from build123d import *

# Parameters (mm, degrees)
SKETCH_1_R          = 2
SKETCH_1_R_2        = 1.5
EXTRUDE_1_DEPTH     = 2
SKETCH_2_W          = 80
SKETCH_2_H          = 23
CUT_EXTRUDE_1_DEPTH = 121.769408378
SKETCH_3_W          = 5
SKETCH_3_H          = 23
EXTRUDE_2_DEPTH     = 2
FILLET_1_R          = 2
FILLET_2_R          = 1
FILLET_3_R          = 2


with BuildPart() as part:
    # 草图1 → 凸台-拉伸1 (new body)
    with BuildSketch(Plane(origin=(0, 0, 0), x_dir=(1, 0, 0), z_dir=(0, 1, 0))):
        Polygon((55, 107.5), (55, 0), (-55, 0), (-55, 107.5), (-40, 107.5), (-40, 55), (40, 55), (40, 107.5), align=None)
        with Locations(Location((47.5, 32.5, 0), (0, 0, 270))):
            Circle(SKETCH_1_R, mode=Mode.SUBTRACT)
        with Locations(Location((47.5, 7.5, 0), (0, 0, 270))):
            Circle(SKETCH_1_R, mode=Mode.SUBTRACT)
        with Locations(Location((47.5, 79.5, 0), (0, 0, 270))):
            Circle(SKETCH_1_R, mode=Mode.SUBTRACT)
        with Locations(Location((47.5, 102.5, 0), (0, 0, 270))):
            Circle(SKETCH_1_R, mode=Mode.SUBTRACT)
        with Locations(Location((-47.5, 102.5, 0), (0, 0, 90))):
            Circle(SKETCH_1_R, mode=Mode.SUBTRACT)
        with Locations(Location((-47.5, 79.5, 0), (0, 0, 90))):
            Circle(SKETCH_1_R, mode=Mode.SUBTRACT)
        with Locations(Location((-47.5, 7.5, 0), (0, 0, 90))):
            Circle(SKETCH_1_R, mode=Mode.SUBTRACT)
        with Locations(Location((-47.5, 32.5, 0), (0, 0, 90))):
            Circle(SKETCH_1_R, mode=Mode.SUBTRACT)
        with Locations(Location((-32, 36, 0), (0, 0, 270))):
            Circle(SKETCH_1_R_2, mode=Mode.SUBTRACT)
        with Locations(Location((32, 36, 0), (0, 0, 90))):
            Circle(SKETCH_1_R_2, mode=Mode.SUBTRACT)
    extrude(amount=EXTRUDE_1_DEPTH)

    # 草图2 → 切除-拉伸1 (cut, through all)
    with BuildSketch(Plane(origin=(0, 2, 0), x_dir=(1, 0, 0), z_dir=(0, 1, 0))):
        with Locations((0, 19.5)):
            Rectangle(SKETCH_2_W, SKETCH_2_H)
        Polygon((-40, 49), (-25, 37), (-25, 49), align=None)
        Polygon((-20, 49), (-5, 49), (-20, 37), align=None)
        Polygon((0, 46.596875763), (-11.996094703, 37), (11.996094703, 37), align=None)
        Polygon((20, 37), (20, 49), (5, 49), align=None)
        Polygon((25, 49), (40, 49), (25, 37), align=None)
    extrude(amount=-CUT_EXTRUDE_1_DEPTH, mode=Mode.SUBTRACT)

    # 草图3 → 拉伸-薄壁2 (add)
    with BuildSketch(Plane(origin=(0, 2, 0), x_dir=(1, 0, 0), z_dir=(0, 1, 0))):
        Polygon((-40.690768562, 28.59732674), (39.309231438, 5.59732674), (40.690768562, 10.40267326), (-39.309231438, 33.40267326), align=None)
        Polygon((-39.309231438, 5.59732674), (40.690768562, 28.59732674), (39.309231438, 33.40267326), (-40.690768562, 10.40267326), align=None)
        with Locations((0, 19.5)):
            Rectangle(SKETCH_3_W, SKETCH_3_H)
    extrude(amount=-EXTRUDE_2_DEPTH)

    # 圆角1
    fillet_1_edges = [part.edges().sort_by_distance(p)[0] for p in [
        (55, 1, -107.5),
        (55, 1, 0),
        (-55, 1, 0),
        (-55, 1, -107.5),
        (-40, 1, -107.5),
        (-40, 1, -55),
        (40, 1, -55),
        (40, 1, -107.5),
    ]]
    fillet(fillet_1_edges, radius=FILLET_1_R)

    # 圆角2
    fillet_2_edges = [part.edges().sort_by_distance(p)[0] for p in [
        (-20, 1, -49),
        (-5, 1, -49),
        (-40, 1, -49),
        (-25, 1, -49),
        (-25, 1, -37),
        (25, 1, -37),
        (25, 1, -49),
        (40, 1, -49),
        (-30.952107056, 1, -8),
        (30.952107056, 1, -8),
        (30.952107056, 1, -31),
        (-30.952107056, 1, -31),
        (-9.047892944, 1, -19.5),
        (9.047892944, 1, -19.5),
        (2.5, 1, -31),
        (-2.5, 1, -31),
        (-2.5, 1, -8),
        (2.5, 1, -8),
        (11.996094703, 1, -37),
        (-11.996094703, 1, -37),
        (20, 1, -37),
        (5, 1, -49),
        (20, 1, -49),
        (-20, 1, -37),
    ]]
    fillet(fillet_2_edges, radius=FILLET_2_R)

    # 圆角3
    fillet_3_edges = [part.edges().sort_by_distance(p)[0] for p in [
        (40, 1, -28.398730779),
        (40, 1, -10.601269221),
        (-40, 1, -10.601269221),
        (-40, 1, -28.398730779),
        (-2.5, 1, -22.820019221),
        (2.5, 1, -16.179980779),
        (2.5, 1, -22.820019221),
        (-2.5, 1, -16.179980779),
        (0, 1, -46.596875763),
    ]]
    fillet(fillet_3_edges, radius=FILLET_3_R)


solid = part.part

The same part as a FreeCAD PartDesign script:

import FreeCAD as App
import Part
import Sketcher


def edges_at(feature, points):
    """Names of the edges that pass closest to the given points."""
    edges = feature.Shape.Edges
    near = lambda p: min(range(len(edges)), key=lambda i: edges[i].distToShape(Part.Vertex(*p))[0])
    return sorted({f"Edge{near(p) + 1}" for p in points})


def add_polygon(sketch, points):
    """Adds a closed chain of lines whose ends are joined by coincident constraints."""
    first, n = sketch.GeometryCount, len(points)
    for a, b in zip(points, points[1:] + points[:1]):
        sketch.addGeometry(Part.LineSegment(App.Vector(*a, 0), App.Vector(*b, 0)), False)
    for i in range(n):
        sketch.addConstraint(Sketcher.Constraint("Coincident", first + i, 2, first + (i + 1) % n, 1))

doc = App.newDocument("Part")
body = doc.addObject("PartDesign::Body", "Body")

sketch1 = body.newObject("Sketcher::SketchObject", "Sketch")
sketch1.AttachmentSupport = (doc.getObject("XZ_Plane"), [""])
sketch1.MapMode = "FlatFace"
add_polygon(sketch1, [(55, 0), (55, -107.5), (40, -107.5), (40, -55), (-40, -55), (-40, -107.5), (-55, -107.5), (-55, 0)])
sketch1.addGeometry(Part.Circle(App.Vector(47.5, -7.5, 0), App.Vector(0, 0, 1), 2), False)
sketch1.addGeometry(Part.Circle(App.Vector(47.5, -32.5, 0), App.Vector(0, 0, 1), 2), False)
sketch1.addGeometry(Part.Circle(App.Vector(32, -36, 0), App.Vector(0, 0, 1), 1.5), False)
sketch1.addGeometry(Part.Circle(App.Vector(-47.5, -7.5, 0), App.Vector(0, 0, 1), 2), False)
sketch1.addGeometry(Part.Circle(App.Vector(-32, -36, 0), App.Vector(0, 0, 1), 1.5), False)
sketch1.addGeometry(Part.Circle(App.Vector(-47.5, -32.5, 0), App.Vector(0, 0, 1), 2), False)
sketch1.addGeometry(Part.Circle(App.Vector(47.5, -79.5, 0), App.Vector(0, 0, 1), 2), False)
sketch1.addGeometry(Part.Circle(App.Vector(47.5, -102.5, 0), App.Vector(0, 0, 1), 2), False)
sketch1.addGeometry(Part.Circle(App.Vector(-47.5, -79.5, 0), App.Vector(0, 0, 1), 2), False)
sketch1.addGeometry(Part.Circle(App.Vector(-47.5, -102.5, 0), App.Vector(0, 0, 1), 2), False)
sketch1.addConstraint([
    Sketcher.Constraint("Vertical", 0),
    Sketcher.Constraint("Horizontal", 1),
    Sketcher.Constraint("Vertical", 2),
    Sketcher.Constraint("Horizontal", 3),
    Sketcher.Constraint("Vertical", 4),
    Sketcher.Constraint("Horizontal", 5),
    Sketcher.Constraint("Vertical", 6),
    Sketcher.Constraint("Horizontal", 7),
    Sketcher.Constraint("Equal", 8, 9),
    Sketcher.Constraint("Equal", 9, 11),
    Sketcher.Constraint("Equal", 10, 12),
    Sketcher.Constraint("Equal", 11, 13),
    Sketcher.Constraint("Equal", 13, 14),
    Sketcher.Constraint("Equal", 14, 15),
    Sketcher.Constraint("Equal", 15, 16),
    Sketcher.Constraint("Equal", 16, 17),
    Sketcher.Constraint("Symmetric", 6, 2, 7, 2, -1, 1),
    Sketcher.Constraint("Symmetric", 8, 3, 11, 3, -2),
    Sketcher.Constraint("Symmetric", 10, 3, 12, 3, -2),
    Sketcher.Constraint("Symmetric", 9, 3, 13, 3, -2),
    Sketcher.Constraint("Symmetric", 14, 3, 16, 3, -2),
    Sketcher.Constraint("Symmetric", 15, 3, 17, 3, -2),
    Sketcher.Constraint("Symmetric", 1, 2, 4, 2, -2),
    Sketcher.Constraint("Vertical", 8, 3, 9, 3),
    Sketcher.Constraint("Vertical", 9, 3, 14, 3),
    Sketcher.Constraint("Vertical", 14, 3, 15, 3),
    Sketcher.Constraint("Diameter", 8, 4.0),
    Sketcher.Constraint("Diameter", 10, 3.0),
    Sketcher.Constraint("DistanceX", 1, 2, 1, 1, 15.0),
    Sketcher.Constraint("DistanceX", 3, 2, 3, 1, 80.0),
    Sketcher.Constraint("DistanceY", 0, 2, 0, 1, 107.5),
    Sketcher.Constraint("DistanceY", 2, 1, 2, 2, 52.5),
    Sketcher.Constraint("DistanceX", -1, 1, 10, 3, 32.0),
    Sketcher.Constraint("DistanceY", 10, 3, -1, 1, 36.0),
    Sketcher.Constraint("DistanceY", 9, 3, 8, 3, 25.0),
    Sketcher.Constraint("DistanceX", 11, 3, 8, 3, 95.0),
    Sketcher.Constraint("DistanceY", 14, 3, 9, 3, 47.0),
    Sketcher.Constraint("DistanceY", 15, 3, 14, 3, 23.0),
    Sketcher.Constraint("DistanceY", 0, 2, 15, 3, 5.0),
])
pad1 = body.newObject("PartDesign::Pad", "Pad")
pad1.Profile = sketch1
pad1.Length = 2
pad1.Reversed = True

sketch2 = body.newObject("Sketcher::SketchObject", "Sketch001")
sketch2.AttachmentSupport = (doc.getObject("XZ_Plane"), [""])
sketch2.MapMode = "FlatFace"
sketch2.AttachmentOffset = App.Placement(App.Vector(0, 0, -2), App.Rotation())
add_polygon(sketch2, [(-40, -31), (-40, -8), (40, -8), (40, -31)])
add_polygon(sketch2, [(-40, -49), (-25, -37), (-25, -49)])
add_polygon(sketch2, [(-5, -49), (-20, -49), (-20, -37)])
add_polygon(sketch2, [(0, -47), (-12, -37), (12, -37)])
add_polygon(sketch2, [(20, -37), (20, -49), (5, -49)])
add_polygon(sketch2, [(40, -49), (25, -49), (25, -37)])
sketch2.addConstraint([
    Sketcher.Constraint("Vertical", 0),
    Sketcher.Constraint("Horizontal", 1),
    Sketcher.Constraint("Vertical", 2),
    Sketcher.Constraint("Horizontal", 3),
    Sketcher.Constraint("Vertical", 5),
    Sketcher.Constraint("Horizontal", 6),
    Sketcher.Constraint("Horizontal", 7),
    Sketcher.Constraint("Vertical", 8),
    Sketcher.Constraint("Horizontal", 11),
    Sketcher.Constraint("Vertical", 13),
    Sketcher.Constraint("Horizontal", 14),
    Sketcher.Constraint("Horizontal", 16),
    Sketcher.Constraint("Vertical", 17),
    Sketcher.Constraint("Symmetric", 7, 2, 13, 2, -2),
    Sketcher.Constraint("Symmetric", 5, 2, 16, 2, -2),
    Sketcher.Constraint("PointOnObject", 12, 2, -2),
    Sketcher.Constraint("Parallel", 9, 10),
    Sketcher.Constraint("Parallel", 4, 12),
    Sketcher.Constraint("Parallel", 12, 15),
    Sketcher.Constraint("Parallel", 10, 18),
    Sketcher.Constraint("Horizontal", 6, 2, 7, 2),
    Sketcher.Constraint("Horizontal", 4, 2, 8, 2),
    Sketcher.Constraint("Horizontal", 8, 2, 10, 2),
    Sketcher.Constraint("Horizontal", 11, 2, 15, 2),
    Sketcher.Constraint("Horizontal", 15, 2, 17, 2),
    Sketcher.Constraint("Vertical", 3, 2, 6, 2),
    Sketcher.Constraint("Vertical", 2, 2, 18, 2),
    Sketcher.Constraint("Equal", 6, 7),
    Sketcher.Constraint("DistanceX", 1, 1, 1, 2, 80.0),
    Sketcher.Constraint("DistanceX", 6, 2, 6, 1, 15.0),
    Sketcher.Constraint("DistanceY", 0, 1, 0, 2, 23.0),
    Sketcher.Constraint("DistanceY", 5, 2, 5, 1, 12.0),
    Sketcher.Constraint("DistanceY", 0, 2, -1, 1, 8.0),
    Sketcher.Constraint("DistanceY", 4, 2, -1, 1, 37.0),
    Sketcher.Constraint("DistanceX", 7, 2, -1, 1, 20.0),
    Sketcher.Constraint("DistanceX", 11, 1, 11, 2, 23.992189),
])
pocket1 = body.newObject("PartDesign::Pocket", "Pocket")
pocket1.Profile = sketch2
pocket1.Type = "ThroughAll"
pocket1.Reversed = True

sketch3 = body.newObject("Sketcher::SketchObject", "Sketch002")
sketch3.AttachmentSupport = (doc.getObject("XZ_Plane"), [""])
sketch3.MapMode = "FlatFace"
sketch3.AttachmentOffset = App.Placement(App.Vector(0, 0, -2), App.Rotation())
add_polygon(sketch3, [(-2, -23), (-39, -33), (-41, -29), (-9, -20), (-41, -10), (-39, -6), (-2, -16), (-2, -8), (2, -8), (2, -16), (39, -6), (41, -10), (9, -20), (41, -29), (39, -33), (2, -23), (2, -31), (-2, -31)])
sketch3.addConstraint([
    Sketcher.Constraint("Vertical", 6),
    Sketcher.Constraint("Horizontal", 7),
    Sketcher.Constraint("Vertical", 8),
    Sketcher.Constraint("Vertical", 15),
    Sketcher.Constraint("Horizontal", 16),
    Sketcher.Constraint("Vertical", 17),
    Sketcher.Constraint("Symmetric", 5, 2, 8, 2, -2),
    Sketcher.Constraint("Symmetric", 4, 2, 9, 2, -2),
    Sketcher.Constraint("Symmetric", 3, 2, 10, 2, -2),
    Sketcher.Constraint("Symmetric", 2, 2, 11, 2, -2),
    Sketcher.Constraint("Symmetric", 1, 2, 12, 2, -2),
    Sketcher.Constraint("Symmetric", 0, 2, 13, 2, -2),
    Sketcher.Constraint("Symmetric", 14, 2, 17, 2, -2),
    Sketcher.Constraint("Perpendicular", 0, 1),
    Sketcher.Constraint("Perpendicular", 1, 2),
    Sketcher.Constraint("Perpendicular", 3, 4),
    Sketcher.Constraint("Perpendicular", 4, 5),
    Sketcher.Constraint("Parallel", 2, 9),
    Sketcher.Constraint("Vertical", 1, 2, 3, 2),
    Sketcher.Constraint("Vertical", 0, 2, 4, 2),
    Sketcher.Constraint("Vertical", 8, 2, 14, 2),
    Sketcher.Constraint("Equal", 8, 15),
    Sketcher.Constraint("DistanceX", 7, 1, 7, 2, 5.0),
    Sketcher.Constraint("Distance", 1, 5.0),
    Sketcher.Constraint("DistanceY", 6, 2, -1, 1, 8.0),
    Sketcher.Constraint("DistanceY", 15, 2, -1, 1, 31.0),
    Sketcher.Constraint("DistanceY", 0, 2, 3, 2, 23.0),
    Sketcher.Constraint("DistanceY", 6, 1, 6, 2, 8.179981),
    Sketcher.Constraint("Distance", 0, 38.300288),
])
pad2 = body.newObject("PartDesign::Pad", "Pad001")
pad2.Profile = sketch3
pad2.Length = 2
doc.recompute()

fillet = body.newObject("PartDesign::Fillet", "Fillet")
fillet.Base = (pad2, edges_at(pad2, [
    (55, 1, -107.5),
    (55, 1, 0),
    (-55, 1, 0),
    (-55, 1, -107.5),
    (-40, 1, -107.5),
    (-40, 1, -55),
    (40, 1, -55),
    (40, 1, -107.5),
]))
fillet.Radius = 2
doc.recompute()

fillet2 = body.newObject("PartDesign::Fillet", "Fillet001")
fillet2.Base = (fillet, edges_at(fillet, [
    (-20, 1, -49),
    (-5, 1, -49),
    (-40, 1, -49),
    (-25, 1, -49),
    (-25, 1, -37),
    (25, 1, -37),
    (25, 1, -49),
    (40, 1, -49),
    (-30.952, 1, -8),
    (30.952, 1, -8),
    (30.952, 1, -31),
    (-30.952, 1, -31),
    (-9.048, 1, -19.5),
    (9.048, 1, -19.5),
    (2.5, 1, -31),
    (-2.5, 1, -31),
    (-2.5, 1, -8),
    (2.5, 1, -8),
    (11.996, 1, -37),
    (-11.996, 1, -37),
    (20, 1, -37),
    (5, 1, -49),
    (20, 1, -49),
    (-20, 1, -37),
]))
fillet2.Radius = 1
doc.recompute()

fillet3 = body.newObject("PartDesign::Fillet", "Fillet002")
fillet3.Base = (fillet2, edges_at(fillet2, [
    (40, 1, -28.399),
    (40, 1, -10.601),
    (-40, 1, -10.601),
    (-40, 1, -28.399),
    (-2.5, 1, -22.82),
    (2.5, 1, -16.18),
    (2.5, 1, -22.82),
    (-2.5, 1, -16.18),
    (0, 1, -46.597),
]))
fillet3.Radius = 2

doc.recompute()
